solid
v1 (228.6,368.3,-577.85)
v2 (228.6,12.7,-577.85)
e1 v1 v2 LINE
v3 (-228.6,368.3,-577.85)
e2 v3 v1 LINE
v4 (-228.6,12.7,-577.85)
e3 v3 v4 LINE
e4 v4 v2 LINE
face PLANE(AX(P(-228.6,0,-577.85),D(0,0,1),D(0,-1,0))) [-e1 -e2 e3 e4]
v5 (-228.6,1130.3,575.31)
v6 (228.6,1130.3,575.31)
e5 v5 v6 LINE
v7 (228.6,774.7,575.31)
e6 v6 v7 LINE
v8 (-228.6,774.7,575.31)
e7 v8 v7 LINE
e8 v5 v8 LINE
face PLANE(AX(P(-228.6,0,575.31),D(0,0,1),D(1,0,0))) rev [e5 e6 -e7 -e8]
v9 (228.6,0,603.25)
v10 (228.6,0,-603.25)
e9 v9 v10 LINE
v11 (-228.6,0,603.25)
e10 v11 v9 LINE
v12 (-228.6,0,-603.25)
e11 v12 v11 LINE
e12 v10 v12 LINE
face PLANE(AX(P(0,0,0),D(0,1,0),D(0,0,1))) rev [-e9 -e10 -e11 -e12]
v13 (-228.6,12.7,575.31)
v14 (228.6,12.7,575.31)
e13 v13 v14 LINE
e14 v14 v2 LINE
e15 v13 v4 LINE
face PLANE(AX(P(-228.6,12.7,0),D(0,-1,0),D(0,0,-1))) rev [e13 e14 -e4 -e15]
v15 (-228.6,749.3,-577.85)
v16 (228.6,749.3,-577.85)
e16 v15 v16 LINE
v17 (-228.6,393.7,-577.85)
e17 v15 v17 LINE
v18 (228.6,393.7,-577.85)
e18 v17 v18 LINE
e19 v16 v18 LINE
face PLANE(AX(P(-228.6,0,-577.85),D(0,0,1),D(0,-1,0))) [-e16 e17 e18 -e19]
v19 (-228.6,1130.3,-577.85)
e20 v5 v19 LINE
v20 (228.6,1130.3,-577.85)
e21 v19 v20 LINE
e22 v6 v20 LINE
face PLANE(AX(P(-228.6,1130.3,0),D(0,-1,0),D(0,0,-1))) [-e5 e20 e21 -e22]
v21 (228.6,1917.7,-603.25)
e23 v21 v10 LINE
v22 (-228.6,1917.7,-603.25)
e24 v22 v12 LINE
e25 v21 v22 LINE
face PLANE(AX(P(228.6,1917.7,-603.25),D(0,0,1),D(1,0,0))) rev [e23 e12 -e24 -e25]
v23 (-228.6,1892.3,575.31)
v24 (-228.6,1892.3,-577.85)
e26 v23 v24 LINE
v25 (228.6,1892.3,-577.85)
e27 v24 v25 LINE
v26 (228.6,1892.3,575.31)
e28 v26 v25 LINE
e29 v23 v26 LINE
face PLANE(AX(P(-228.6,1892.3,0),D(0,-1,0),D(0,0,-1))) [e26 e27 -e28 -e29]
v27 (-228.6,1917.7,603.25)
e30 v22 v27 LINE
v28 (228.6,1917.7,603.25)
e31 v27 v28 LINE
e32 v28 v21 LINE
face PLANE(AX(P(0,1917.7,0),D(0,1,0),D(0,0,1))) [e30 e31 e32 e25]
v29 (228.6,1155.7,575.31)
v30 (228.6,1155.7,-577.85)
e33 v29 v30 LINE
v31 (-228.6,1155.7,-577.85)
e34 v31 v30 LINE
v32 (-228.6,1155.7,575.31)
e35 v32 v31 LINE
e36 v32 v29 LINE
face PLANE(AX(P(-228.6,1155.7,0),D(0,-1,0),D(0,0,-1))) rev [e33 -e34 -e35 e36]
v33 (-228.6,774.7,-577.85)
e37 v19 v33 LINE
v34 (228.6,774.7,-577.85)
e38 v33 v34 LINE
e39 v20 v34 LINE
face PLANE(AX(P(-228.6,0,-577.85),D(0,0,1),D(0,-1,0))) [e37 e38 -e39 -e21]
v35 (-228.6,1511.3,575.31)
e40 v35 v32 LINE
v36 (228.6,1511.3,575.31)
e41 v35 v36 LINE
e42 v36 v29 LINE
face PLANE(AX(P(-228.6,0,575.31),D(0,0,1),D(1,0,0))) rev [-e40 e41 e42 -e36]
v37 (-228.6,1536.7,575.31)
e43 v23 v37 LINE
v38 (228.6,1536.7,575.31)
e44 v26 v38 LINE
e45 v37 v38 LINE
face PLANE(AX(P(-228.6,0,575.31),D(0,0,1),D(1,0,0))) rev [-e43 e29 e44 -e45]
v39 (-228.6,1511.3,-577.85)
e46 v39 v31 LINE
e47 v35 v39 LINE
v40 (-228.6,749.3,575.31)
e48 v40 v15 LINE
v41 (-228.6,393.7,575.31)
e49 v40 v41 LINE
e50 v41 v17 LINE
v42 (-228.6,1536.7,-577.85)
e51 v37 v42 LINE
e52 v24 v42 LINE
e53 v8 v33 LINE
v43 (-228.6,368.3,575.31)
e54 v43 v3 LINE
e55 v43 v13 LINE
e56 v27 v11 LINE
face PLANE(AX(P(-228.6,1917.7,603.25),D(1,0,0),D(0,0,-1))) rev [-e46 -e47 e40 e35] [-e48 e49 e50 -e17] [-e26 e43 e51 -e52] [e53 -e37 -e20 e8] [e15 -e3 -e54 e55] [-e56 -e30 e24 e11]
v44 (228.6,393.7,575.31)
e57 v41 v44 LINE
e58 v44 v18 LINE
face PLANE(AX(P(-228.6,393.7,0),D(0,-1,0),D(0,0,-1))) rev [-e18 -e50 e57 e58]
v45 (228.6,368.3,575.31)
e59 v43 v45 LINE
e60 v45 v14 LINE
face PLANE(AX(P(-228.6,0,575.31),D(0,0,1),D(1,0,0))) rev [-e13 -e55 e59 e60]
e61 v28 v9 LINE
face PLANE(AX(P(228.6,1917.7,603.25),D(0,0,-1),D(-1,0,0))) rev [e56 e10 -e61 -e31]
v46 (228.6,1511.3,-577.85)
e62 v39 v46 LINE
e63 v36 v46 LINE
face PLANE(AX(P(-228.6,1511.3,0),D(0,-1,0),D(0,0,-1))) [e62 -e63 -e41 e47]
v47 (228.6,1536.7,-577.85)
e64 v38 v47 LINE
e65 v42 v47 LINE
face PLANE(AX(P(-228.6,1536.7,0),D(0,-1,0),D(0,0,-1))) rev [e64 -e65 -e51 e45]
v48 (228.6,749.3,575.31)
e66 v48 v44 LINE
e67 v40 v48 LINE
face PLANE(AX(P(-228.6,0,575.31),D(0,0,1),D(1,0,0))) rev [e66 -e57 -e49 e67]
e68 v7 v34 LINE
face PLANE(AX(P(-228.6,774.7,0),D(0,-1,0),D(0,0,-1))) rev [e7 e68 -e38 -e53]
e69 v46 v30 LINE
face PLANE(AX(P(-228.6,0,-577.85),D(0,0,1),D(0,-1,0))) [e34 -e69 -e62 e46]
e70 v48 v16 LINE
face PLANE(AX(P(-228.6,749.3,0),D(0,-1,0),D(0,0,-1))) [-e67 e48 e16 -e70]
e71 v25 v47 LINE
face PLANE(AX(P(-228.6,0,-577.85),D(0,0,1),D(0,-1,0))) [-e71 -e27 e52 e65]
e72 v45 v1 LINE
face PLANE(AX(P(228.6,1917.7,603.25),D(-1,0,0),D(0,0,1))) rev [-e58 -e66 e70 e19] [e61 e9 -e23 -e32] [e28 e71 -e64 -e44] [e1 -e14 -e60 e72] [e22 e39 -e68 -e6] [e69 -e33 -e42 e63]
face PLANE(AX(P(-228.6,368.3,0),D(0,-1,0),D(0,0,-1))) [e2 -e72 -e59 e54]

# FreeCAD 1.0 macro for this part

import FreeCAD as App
import Part
import Sketcher
Q = App.Units.Quantity


def add_polygon(sketch, points):
    """Adds a closed chain of lines whose ends are joined by coincident constraints."""
    first, n = sketch.GeometryCount, len(points)
    for a, b in zip(points, points[1:] + points[:1]):
        sketch.addGeometry(Part.LineSegment(App.Vector(*a, 0), App.Vector(*b, 0)), False)
    for i in range(n):
        sketch.addConstraint(Sketcher.Constraint("Coincident", first + i, 2, first + (i + 1) % n, 1))

doc = App.newDocument("Part")
body = doc.addObject("PartDesign::Body", "Body")

sketch1 = body.newObject("Sketcher::SketchObject", "Sketch")
sketch1.AttachmentSupport = (doc.getObject("XZ_Plane"), [""])
sketch1.MapMode = "FlatFace"
add_polygon(sketch1, [(-228.6, -603.25), (-228.6, 603.25), (228.6, 603.25), (228.6, -603.25)])
sketch1.addConstraint(Sketcher.Constraint("Vertical", 0))
sketch1.addConstraint(Sketcher.Constraint("Horizontal", 1))
sketch1.addConstraint(Sketcher.Constraint("Vertical", 2))
sketch1.addConstraint(Sketcher.Constraint("Horizontal", 3))
sketch1.addConstraint(Sketcher.Constraint("Symmetric", 0, 2, 2, 2, -1, 1))
sketch1.addConstraint(Sketcher.Constraint("DistanceX", 1, 1, 1, 2, Q("18 in")))
sketch1.addConstraint(Sketcher.Constraint("DistanceY", 0, 1, 0, 2, Q("47.5 in")))
pad1 = body.newObject("PartDesign::Pad", "Pad")
pad1.Profile = sketch1
pad1.Length = Q("75.5 in")
pad1.Reversed = True

sketch2 = body.newObject("Sketcher::SketchObject", "Sketch001")
sketch2.AttachmentSupport = (doc.getObject("YZ_Plane"), [""])
sketch2.MapMode = "FlatFace"
sketch2.AttachmentOffset = App.Placement(App.Vector(0, 0, 9 * 25.4), App.Rotation())
add_polygon(sketch2, [(1892.3, 575.31), (1536.7, 575.31), (1536.7, -577.85), (1892.3, -577.85)])
add_polygon(sketch2, [(1511.3, 575.31), (1155.7, 575.31), (1155.7, -577.85), (1511.3, -577.85)])
add_polygon(sketch2, [(1130.3, 575.31), (774.7, 575.31), (774.7, -577.85), (1130.3, -577.85)])
add_polygon(sketch2, [(749.3, 575.31), (393.7, 575.31), (393.7, -577.85), (749.3, -577.85)])
add_polygon(sketch2, [(368.3, 575.31), (12.7, 575.31), (12.7, -577.85), (368.3, -577.85)])
sketch2.addConstraint(Sketcher.Constraint("Horizontal", 0))
sketch2.addConstraint(Sketcher.Constraint("Vertical", 1))
sketch2.addConstraint(Sketcher.Constraint("Horizontal", 2))
sketch2.addConstraint(Sketcher.Constraint("Vertical", 3))
sketch2.addConstraint(Sketcher.Constraint("Horizontal", 4))
sketch2.addConstraint(Sketcher.Constraint("Vertical", 5))
sketch2.addConstraint(Sketcher.Constraint("Horizontal", 6))
sketch2.addConstraint(Sketcher.Constraint("Vertical", 7))
sketch2.addConstraint(Sketcher.Constraint("Horizontal", 8))
sketch2.addConstraint(Sketcher.Constraint("Vertical", 9))
sketch2.addConstraint(Sketcher.Constraint("Horizontal", 10))
sketch2.addConstraint(Sketcher.Constraint("Vertical", 11))
sketch2.addConstraint(Sketcher.Constraint("Horizontal", 12))
sketch2.addConstraint(Sketcher.Constraint("Vertical", 13))
sketch2.addConstraint(Sketcher.Constraint("Horizontal", 14))
sketch2.addConstraint(Sketcher.Constraint("Vertical", 15))
sketch2.addConstraint(Sketcher.Constraint("Horizontal", 16))
sketch2.addConstraint(Sketcher.Constraint("Vertical", 17))
sketch2.addConstraint(Sketcher.Constraint("Horizontal", 18))
sketch2.addConstraint(Sketcher.Constraint("Vertical", 19))
sketch2.addConstraint(Sketcher.Constraint("Horizontal", 3, 2, 4, 2))
sketch2.addConstraint(Sketcher.Constraint("Horizontal", 2, 2, 5, 2))
sketch2.addConstraint(Sketcher.Constraint("Horizontal", 7, 2, 8, 2))
sketch2.addConstraint(Sketcher.Constraint("Horizontal", 6, 2, 9, 2))
sketch2.addConstraint(Sketcher.Constraint("Horizontal", 11, 2, 12, 2))
sketch2.addConstraint(Sketcher.Constraint("Horizontal", 10, 2, 13, 2))
sketch2.addConstraint(Sketcher.Constraint("Horizontal", 15, 2, 16, 2))
sketch2.addConstraint(Sketcher.Constraint("Horizontal", 14, 2, 17, 2))
sketch2.addConstraint(Sketcher.Constraint("Equal", 2, 4))
sketch2.addConstraint(Sketcher.Constraint("Equal", 6, 8))
sketch2.addConstraint(Sketcher.Constraint("Equal", 10, 12))
sketch2.addConstraint(Sketcher.Constraint("Equal", 14, 16))
sketch2.addConstraint(Sketcher.Constraint("DistanceX", 0, 2, 0, 1, Q("14 in")))
sketch2.addConstraint(Sketcher.Constraint("DistanceY", 1, 2, 1, 1, Q("45.4 in")))
sketch2.addConstraint(Sketcher.Constraint("DistanceX", 4, 2, 0, 2, Q("15 in")))
sketch2.addConstraint(Sketcher.Constraint("DistanceX", 8, 2, 4, 2, Q("15 in")))
sketch2.addConstraint(Sketcher.Constraint("DistanceX", 12, 2, 8, 2, Q("15 in")))
sketch2.addConstraint(Sketcher.Constraint("DistanceX", 16, 2, 12, 2, Q("15 in")))
sketch2.addConstraint(Sketcher.Constraint("DistanceX", -1, 1, 0, 2, Q("60.5 in")))
sketch2.addConstraint(Sketcher.Constraint("DistanceY", -1, 1, 0, 2, Q("22.65 in")))
pocket1 = body.newObject("PartDesign::Pocket", "Pocket")
pocket1.Profile = sketch2
pocket1.Type = "ThroughAll"

doc.recompute()
